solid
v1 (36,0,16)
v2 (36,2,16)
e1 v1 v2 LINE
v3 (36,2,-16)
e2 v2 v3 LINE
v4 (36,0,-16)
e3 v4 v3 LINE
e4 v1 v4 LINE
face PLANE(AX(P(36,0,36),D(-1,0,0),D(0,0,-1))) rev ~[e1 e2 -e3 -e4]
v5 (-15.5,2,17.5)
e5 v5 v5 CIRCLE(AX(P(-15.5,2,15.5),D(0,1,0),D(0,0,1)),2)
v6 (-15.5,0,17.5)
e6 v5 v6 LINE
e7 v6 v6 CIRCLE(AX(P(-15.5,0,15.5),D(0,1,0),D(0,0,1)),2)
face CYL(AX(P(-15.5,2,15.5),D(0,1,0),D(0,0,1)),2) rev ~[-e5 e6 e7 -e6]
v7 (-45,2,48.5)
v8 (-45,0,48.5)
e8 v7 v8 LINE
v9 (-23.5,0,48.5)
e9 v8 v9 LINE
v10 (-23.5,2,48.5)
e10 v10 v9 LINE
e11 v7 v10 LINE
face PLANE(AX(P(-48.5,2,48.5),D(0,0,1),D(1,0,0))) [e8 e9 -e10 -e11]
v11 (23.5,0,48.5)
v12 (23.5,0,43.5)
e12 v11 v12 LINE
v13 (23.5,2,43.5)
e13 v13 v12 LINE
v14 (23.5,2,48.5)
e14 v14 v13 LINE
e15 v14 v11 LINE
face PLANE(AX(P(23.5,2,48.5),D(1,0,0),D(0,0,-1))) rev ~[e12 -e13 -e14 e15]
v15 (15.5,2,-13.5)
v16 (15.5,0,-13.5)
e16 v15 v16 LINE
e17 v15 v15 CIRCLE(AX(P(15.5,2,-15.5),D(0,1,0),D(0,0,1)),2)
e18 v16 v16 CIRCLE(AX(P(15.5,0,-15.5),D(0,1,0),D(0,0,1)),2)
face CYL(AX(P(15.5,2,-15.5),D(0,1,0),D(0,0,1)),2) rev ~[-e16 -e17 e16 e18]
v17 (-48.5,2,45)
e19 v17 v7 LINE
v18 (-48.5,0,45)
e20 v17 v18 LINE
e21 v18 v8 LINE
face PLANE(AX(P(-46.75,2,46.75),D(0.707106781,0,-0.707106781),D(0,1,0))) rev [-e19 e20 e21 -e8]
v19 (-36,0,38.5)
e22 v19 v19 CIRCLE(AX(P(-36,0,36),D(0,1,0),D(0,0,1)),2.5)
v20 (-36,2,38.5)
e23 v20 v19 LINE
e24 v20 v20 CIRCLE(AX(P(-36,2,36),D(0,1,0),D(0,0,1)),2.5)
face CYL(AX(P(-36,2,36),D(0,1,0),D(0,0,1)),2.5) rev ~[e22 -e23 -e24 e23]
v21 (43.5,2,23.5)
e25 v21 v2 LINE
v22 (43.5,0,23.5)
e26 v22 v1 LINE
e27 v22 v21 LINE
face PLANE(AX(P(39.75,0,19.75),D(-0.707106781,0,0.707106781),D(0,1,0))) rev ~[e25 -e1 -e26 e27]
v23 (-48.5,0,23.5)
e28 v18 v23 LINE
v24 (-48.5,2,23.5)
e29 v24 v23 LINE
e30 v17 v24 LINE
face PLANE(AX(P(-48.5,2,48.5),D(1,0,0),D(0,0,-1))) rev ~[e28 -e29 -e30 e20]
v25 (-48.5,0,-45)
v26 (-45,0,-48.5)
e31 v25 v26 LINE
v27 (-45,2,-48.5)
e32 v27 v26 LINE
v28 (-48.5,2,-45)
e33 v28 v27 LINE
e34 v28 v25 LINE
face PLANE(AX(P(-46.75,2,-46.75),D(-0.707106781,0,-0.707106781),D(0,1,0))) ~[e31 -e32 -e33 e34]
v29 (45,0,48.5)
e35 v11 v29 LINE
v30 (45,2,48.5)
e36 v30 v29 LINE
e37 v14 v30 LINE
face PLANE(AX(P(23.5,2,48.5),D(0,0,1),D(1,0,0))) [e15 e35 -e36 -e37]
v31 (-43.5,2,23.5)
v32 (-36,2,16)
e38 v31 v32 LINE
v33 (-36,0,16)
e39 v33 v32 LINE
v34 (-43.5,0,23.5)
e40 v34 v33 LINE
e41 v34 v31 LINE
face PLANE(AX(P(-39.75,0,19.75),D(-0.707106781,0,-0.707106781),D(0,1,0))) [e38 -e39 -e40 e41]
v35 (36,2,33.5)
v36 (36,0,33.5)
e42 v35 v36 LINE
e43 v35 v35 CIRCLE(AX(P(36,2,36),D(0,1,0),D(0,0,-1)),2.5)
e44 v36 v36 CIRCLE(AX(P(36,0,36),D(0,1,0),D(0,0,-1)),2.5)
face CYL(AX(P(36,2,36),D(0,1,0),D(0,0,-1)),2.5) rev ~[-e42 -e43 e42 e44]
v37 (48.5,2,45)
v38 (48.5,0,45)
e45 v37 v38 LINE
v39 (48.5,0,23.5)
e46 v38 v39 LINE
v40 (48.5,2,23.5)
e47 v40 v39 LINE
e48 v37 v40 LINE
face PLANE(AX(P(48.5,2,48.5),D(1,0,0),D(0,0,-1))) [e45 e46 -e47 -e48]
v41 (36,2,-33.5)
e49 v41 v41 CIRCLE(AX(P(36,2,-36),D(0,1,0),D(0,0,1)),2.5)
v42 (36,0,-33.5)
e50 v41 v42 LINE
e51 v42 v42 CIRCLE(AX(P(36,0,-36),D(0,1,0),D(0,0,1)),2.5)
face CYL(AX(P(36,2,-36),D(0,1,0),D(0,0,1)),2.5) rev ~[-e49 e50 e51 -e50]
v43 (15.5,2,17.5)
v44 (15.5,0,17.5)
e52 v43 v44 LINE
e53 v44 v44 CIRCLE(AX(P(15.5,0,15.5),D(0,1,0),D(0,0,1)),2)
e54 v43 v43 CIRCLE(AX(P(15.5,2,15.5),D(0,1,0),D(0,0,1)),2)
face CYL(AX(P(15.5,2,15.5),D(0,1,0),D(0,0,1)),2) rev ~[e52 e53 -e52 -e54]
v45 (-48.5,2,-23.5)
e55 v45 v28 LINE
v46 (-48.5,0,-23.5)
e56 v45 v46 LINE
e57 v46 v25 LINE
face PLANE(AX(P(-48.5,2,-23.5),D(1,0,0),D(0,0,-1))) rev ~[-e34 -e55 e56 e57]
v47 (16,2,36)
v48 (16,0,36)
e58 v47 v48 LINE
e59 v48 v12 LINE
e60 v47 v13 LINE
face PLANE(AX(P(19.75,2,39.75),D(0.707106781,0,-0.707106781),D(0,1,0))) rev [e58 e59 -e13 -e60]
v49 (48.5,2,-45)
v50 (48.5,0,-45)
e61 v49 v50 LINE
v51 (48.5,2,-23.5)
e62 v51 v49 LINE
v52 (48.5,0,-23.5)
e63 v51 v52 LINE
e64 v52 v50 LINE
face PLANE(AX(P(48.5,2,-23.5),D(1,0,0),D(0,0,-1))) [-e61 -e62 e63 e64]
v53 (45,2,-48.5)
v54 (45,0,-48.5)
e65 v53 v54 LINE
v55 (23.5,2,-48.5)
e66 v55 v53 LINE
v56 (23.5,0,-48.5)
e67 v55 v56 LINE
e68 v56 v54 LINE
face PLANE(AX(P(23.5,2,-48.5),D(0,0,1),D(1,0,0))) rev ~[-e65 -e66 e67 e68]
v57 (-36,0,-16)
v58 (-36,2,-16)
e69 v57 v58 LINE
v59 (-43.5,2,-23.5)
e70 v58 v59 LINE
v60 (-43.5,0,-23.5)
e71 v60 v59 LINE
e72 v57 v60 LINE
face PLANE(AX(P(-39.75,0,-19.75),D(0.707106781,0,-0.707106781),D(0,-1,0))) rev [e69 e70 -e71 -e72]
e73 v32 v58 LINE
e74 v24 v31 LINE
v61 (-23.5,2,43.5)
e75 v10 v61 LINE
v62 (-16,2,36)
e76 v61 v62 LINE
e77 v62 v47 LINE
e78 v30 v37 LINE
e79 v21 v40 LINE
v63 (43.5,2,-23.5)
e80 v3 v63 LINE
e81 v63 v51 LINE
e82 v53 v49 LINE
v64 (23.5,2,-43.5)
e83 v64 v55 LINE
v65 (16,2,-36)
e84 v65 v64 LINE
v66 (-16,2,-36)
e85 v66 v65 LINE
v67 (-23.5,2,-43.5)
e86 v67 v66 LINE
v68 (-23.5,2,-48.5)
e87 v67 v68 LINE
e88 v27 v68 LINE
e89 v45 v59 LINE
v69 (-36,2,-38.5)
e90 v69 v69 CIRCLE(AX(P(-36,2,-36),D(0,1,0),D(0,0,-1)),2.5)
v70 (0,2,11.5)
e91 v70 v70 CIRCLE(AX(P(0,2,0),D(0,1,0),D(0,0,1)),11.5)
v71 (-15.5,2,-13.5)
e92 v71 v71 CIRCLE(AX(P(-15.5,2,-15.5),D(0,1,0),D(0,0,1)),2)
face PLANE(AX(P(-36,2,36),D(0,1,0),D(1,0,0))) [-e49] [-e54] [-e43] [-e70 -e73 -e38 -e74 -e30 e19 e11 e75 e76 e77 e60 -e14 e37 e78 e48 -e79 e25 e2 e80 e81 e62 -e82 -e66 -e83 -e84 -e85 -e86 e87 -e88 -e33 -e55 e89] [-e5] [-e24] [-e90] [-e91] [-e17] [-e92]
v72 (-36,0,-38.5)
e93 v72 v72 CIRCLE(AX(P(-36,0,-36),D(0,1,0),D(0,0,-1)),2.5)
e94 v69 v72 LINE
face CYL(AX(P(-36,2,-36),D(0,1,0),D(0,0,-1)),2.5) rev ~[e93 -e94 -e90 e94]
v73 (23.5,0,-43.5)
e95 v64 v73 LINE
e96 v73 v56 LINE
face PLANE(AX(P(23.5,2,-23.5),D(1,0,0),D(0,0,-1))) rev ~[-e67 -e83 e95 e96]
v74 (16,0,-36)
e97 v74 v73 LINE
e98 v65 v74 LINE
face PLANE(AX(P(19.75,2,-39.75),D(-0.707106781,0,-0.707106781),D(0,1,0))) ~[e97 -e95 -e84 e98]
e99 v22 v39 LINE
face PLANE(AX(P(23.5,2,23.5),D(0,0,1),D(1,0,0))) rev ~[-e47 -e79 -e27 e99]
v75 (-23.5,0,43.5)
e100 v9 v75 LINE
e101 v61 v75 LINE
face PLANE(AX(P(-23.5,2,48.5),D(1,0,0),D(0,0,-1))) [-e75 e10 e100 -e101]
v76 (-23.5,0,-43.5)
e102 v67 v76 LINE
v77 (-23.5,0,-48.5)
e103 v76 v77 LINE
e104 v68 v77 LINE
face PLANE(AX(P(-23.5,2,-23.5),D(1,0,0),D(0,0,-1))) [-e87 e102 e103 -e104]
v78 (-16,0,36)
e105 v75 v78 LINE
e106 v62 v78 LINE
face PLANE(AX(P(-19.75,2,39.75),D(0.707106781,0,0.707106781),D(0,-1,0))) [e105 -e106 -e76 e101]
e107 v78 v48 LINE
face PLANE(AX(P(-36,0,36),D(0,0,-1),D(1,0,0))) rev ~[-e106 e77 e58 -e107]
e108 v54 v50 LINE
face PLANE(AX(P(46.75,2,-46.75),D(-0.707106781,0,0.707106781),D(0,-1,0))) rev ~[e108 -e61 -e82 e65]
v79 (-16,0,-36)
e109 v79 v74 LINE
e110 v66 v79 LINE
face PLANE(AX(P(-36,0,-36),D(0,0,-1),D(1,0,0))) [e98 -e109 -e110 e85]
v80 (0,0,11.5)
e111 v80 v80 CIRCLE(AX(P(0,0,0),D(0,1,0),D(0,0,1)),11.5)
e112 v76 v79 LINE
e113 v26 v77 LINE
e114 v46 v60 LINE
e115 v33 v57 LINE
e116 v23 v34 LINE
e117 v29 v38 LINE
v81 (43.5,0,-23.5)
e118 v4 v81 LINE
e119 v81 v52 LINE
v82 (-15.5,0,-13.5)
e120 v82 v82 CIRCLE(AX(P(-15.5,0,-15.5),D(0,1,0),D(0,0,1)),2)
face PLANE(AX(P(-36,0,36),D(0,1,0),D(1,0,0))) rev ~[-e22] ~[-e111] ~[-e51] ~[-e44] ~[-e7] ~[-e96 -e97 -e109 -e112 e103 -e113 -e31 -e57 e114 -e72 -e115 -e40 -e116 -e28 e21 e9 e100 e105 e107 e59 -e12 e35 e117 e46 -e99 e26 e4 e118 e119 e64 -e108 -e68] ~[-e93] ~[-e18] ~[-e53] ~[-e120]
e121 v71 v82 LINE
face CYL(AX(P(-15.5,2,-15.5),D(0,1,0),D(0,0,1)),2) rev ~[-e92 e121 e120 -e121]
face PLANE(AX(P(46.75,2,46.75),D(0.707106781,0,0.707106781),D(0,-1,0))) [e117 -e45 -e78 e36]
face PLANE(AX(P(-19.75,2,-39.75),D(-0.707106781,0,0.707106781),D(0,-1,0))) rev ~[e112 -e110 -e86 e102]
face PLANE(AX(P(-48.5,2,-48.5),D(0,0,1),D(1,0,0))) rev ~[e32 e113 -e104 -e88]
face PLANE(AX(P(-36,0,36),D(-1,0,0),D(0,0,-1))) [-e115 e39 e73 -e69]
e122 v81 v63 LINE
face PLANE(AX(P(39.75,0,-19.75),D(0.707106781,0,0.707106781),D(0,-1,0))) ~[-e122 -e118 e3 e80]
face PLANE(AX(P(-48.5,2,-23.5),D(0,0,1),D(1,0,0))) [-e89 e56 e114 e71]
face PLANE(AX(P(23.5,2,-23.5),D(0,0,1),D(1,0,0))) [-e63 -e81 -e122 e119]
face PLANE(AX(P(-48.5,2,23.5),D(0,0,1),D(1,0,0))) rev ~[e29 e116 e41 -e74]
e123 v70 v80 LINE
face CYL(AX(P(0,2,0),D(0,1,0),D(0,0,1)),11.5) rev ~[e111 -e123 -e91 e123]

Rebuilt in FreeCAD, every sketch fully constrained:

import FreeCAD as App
import Part
import Sketcher
Q = App.Units.Quantity


def edges_at(feature, points):
    """Names of the edges that pass closest to the given points."""
    edges = feature.Shape.Edges
    near = lambda p: min(range(len(edges)), key=lambda i: edges[i].distToShape(Part.Vertex(*p))[0])
    return sorted({f"Edge{near(p) + 1}" for p in points})

doc = App.newDocument("Part")
body = doc.addObject("PartDesign::Body", "Body")

# Sketch on XZ plane
sketch1 = body.newObject("Sketcher::SketchObject", "Sketch")
sketch1.AttachmentSupport = (doc.getObject("XZ_Plane"), [""])
sketch1.MapMode = "FlatFace"
sketch1.addGeometry(Part.LineSegment(App.Vector(-36, -36, 0), App.Vector(-36, 36, 0)), False)
sketch1.addGeometry(Part.LineSegment(App.Vector(-36, 36, 0), App.Vector(36, 36, 0)), False)
sketch1.addGeometry(Part.LineSegment(App.Vector(36, 36, 0), App.Vector(36, -36, 0)), False)
sketch1.addGeometry(Part.LineSegment(App.Vector(36, -36, 0), App.Vector(-36, -36, 0)), False)
sketch1.addConstraint(Sketcher.Constraint("Coincident", 0, 2, 1, 1))
sketch1.addConstraint(Sketcher.Constraint("Coincident", 1, 2, 2, 1))
sketch1.addConstraint(Sketcher.Constraint("Coincident", 2, 2, 3, 1))
sketch1.addConstraint(Sketcher.Constraint("Coincident", 3, 2, 0, 1))
sketch1.addConstraint(Sketcher.Constraint("Vertical", 0))
sketch1.addConstraint(Sketcher.Constraint("Horizontal", 1))
sketch1.addConstraint(Sketcher.Constraint("Vertical", 2))
sketch1.addConstraint(Sketcher.Constraint("Horizontal", 3))
sketch1.addConstraint(Sketcher.Constraint("Symmetric", 0, 2, 2, 2, -1, 1))
sketch1.addConstraint(Sketcher.Constraint("Equal", 3, 0))
sketch1.addConstraint(Sketcher.Constraint("DistanceX", 1, 1, 1, 2, Q("72 mm")))
pad1 = body.newObject("PartDesign::Pad", "Pad")
pad1.Profile = sketch1
pad1.Length = 2
pad1.Reversed = True

# Sketch on XZ plane
sketch2 = body.newObject("Sketcher::SketchObject", "Sketch001")
sketch2.AttachmentSupport = (doc.getObject("XZ_Plane"), [""])
sketch2.MapMode = "FlatFace"
sketch2.AttachmentOffset = App.Placement(App.Vector(0, 0, -2), App.Rotation())
sketch2.addGeometry(Part.LineSegment(App.Vector(-48.5, 23.5, 0), App.Vector(-48.5, 48.5, 0)), False)
sketch2.addGeometry(Part.LineSegment(App.Vector(-48.5, 48.5, 0), App.Vector(-23.5, 48.5, 0)), False)
sketch2.addGeometry(Part.LineSegment(App.Vector(-23.5, 48.5, 0), App.Vector(-23.5, 23.5, 0)), False)
sketch2.addGeometry(Part.LineSegment(App.Vector(-23.5, 23.5, 0), App.Vector(-48.5, 23.5, 0)), False)
sketch2.addGeometry(Part.LineSegment(App.Vector(23.5, 23.5, 0), App.Vector(23.5, 48.5, 0)), False)
sketch2.addGeometry(Part.LineSegment(App.Vector(23.5, 48.5, 0), App.Vector(48.5, 48.5, 0)), False)
sketch2.addGeometry(Part.LineSegment(App.Vector(48.5, 48.5, 0), App.Vector(48.5, 23.5, 0)), False)
sketch2.addGeometry(Part.LineSegment(App.Vector(48.5, 23.5, 0), App.Vector(23.5, 23.5, 0)), False)
sketch2.addGeometry(Part.LineSegment(App.Vector(23.5, -48.5, 0), App.Vector(23.5, -23.5, 0)), False)
sketch2.addGeometry(Part.LineSegment(App.Vector(23.5, -23.5, 0), App.Vector(48.5, -23.5, 0)), False)
sketch2.addGeometry(Part.LineSegment(App.Vector(48.5, -23.5, 0), App.Vector(48.5, -48.5, 0)), False)
sketch2.addGeometry(Part.LineSegment(App.Vector(48.5, -48.5, 0), App.Vector(23.5, -48.5, 0)), False)
sketch2.addGeometry(Part.LineSegment(App.Vector(-48.5, -48.5, 0), App.Vector(-48.5, -23.5, 0)), False)
sketch2.addGeometry(Part.LineSegment(App.Vector(-48.5, -23.5, 0), App.Vector(-23.5, -23.5, 0)), False)
sketch2.addGeometry(Part.LineSegment(App.Vector(-23.5, -23.5, 0), App.Vector(-23.5, -48.5, 0)), False)
sketch2.addGeometry(Part.LineSegment(App.Vector(-23.5, -48.5, 0), App.Vector(-48.5, -48.5, 0)), False)
sketch2.addConstraint(Sketcher.Constraint("Coincident", 0, 2, 1, 1))
sketch2.addConstraint(Sketcher.Constraint("Coincident", 1, 2, 2, 1))
sketch2.addConstraint(Sketcher.Constraint("Coincident", 2, 2, 3, 1))
sketch2.addConstraint(Sketcher.Constraint("Coincident", 3, 2, 0, 1))
sketch2.addConstraint(Sketcher.Constraint("Coincident", 4, 2, 5, 1))
sketch2.addConstraint(Sketcher.Constraint("Coincident", 5, 2, 6, 1))
sketch2.addConstraint(Sketcher.Constraint("Coincident", 6, 2, 7, 1))
sketch2.addConstraint(Sketcher.Constraint("Coincident", 7, 2, 4, 1))
sketch2.addConstraint(Sketcher.Constraint("Coincident", 8, 2, 9, 1))
sketch2.addConstraint(Sketcher.Constraint("Coincident", 9, 2, 10, 1))
sketch2.addConstraint(Sketcher.Constraint("Coincident", 10, 2, 11, 1))
sketch2.addConstraint(Sketcher.Constraint("Coincident", 11, 2, 8, 1))
sketch2.addConstraint(Sketcher.Constraint("Coincident", 12, 2, 13, 1))
sketch2.addConstraint(Sketcher.Constraint("Coincident", 13, 2, 14, 1))
sketch2.addConstraint(Sketcher.Constraint("Coincident", 14, 2, 15, 1))
sketch2.addConstraint(Sketcher.Constraint("Coincident", 15, 2, 12, 1))
sketch2.addConstraint(Sketcher.Constraint("Vertical", 0))
sketch2.addConstraint(Sketcher.Constraint("Horizontal", 1))
sketch2.addConstraint(Sketcher.Constraint("Vertical", 2))
sketch2.addConstraint(Sketcher.Constraint("Horizontal", 3))
sketch2.addConstraint(Sketcher.Constraint("Vertical", 4))
sketch2.addConstraint(Sketcher.Constraint("Horizontal", 5))
sketch2.addConstraint(Sketcher.Constraint("Vertical", 6))
sketch2.addConstraint(Sketcher.Constraint("Horizontal", 7))
sketch2.addConstraint(Sketcher.Constraint("Vertical", 8))
sketch2.addConstraint(Sketcher.Constraint("Horizontal", 9))
sketch2.addConstraint(Sketcher.Constraint("Vertical", 10))
sketch2.addConstraint(Sketcher.Constraint("Horizontal", 11))
sketch2.addConstraint(Sketcher.Constraint("Vertical", 12))
sketch2.addConstraint(Sketcher.Constraint("Horizontal", 13))
sketch2.addConstraint(Sketcher.Constraint("Vertical", 14))
sketch2.addConstraint(Sketcher.Constraint("Horizontal", 15))
sketch2.addConstraint(Sketcher.Constraint("Symmetric", 2, 2, 8, 2, -1, 1))
sketch2.addConstraint(Sketcher.Constraint("Symmetric", 0, 2, 10, 2, -1, 1))
sketch2.addConstraint(Sketcher.Constraint("Symmetric", 6, 2, 12, 2, -1, 1))
sketch2.addConstraint(Sketcher.Constraint("Symmetric", 4, 2, 14, 2, -1, 1))
sketch2.addConstraint(Sketcher.Constraint("Symmetric", 1, 2, 4, 2, -2))
sketch2.addConstraint(Sketcher.Constraint("Symmetric", 3, 2, 6, 2, -2))
sketch2.addConstraint(Sketcher.Constraint("Equal", 15, 0))
sketch2.addConstraint(Sketcher.Constraint("DistanceX", 1, 1, 1, 2, Q("25 mm")))
sketch2.addConstraint(Sketcher.Constraint("DistanceX", 1, 2, 4, 2, Q("47 mm")))
sketch2.addConstraint(Sketcher.Constraint("DistanceY", 8, 2, 7, 2, Q("47 mm")))
pad2 = body.newObject("PartDesign::Pad", "Pad001")
pad2.Profile = sketch2
pad2.Length = 2

# Sketch on XZ plane
sketch3 = body.newObject("Sketcher::SketchObject", "Sketch002")
sketch3.AttachmentSupport = (doc.getObject("XZ_Plane"), [""])
sketch3.MapMode = "FlatFace"
sketch3.AttachmentOffset = App.Placement(App.Vector(0, 0, -2), App.Rotation())
sketch3.addGeometry(Part.Circle(App.Vector(-15.5, -15.5, 0), App.Vector(0, 0, 1), 2), False)
sketch3.addGeometry(Part.Circle(App.Vector(15.5, -15.5, 0), App.Vector(0, 0, 1), 2), False)
sketch3.addGeometry(Part.Circle(App.Vector(15.5, 15.5, 0), App.Vector(0, 0, 1), 2), False)
sketch3.addGeometry(Part.Circle(App.Vector(-15.5, 15.5, 0), App.Vector(0, 0, 1), 2), False)
sketch3.addGeometry(Part.Circle(App.Vector(0, 0, 0), App.Vector(0, 0, 1), 11.5), False)
sketch3.addGeometry(Part.Circle(App.Vector(-36, 36, 0), App.Vector(0, 0, 1), 2.5), False)
sketch3.addGeometry(Part.Circle(App.Vector(36, 36, 0), App.Vector(0, 0, 1), 2.5), False)
sketch3.addGeometry(Part.Circle(App.Vector(36, -36, 0), App.Vector(0, 0, 1), 2.5), False)
sketch3.addGeometry(Part.Circle(App.Vector(-36, -36, 0), App.Vector(0, 0, 1), 2.5), False)
sketch3.addConstraint(Sketcher.Constraint("Coincident", 4, 3, -1, 1))
sketch3.addConstraint(Sketcher.Constraint("Equal", 0, 1))
sketch3.addConstraint(Sketcher.Constraint("Equal", 1, 2))
sketch3.addConstraint(Sketcher.Constraint("Equal", 2, 3))
sketch3.addConstraint(Sketcher.Constraint("Equal", 5, 6))
sketch3.addConstraint(Sketcher.Constraint("Equal", 6, 7))
sketch3.addConstraint(Sketcher.Constraint("Equal", 7, 8))
sketch3.addConstraint(Sketcher.Constraint("Symmetric", 0, 3, 2, 3, -1, 1))
sketch3.addConstraint(Sketcher.Constraint("Symmetric", 1, 3, 3, 3, -1, 1))
sketch3.addConstraint(Sketcher.Constraint("Symmetric", 5, 3, 7, 3, -1, 1))
sketch3.addConstraint(Sketcher.Constraint("Symmetric", 6, 3, 8, 3, -1, 1))
sketch3.addConstraint(Sketcher.Constraint("Symmetric", 0, 3, 1, 3, -2))
sketch3.addConstraint(Sketcher.Constraint("Symmetric", 5, 3, 6, 3, -2))
sketch3.addConstraint(Sketcher.Constraint("Diameter", 0, Q("4 mm")))
sketch3.addConstraint(Sketcher.Constraint("Diameter", 4, Q("23 mm")))
sketch3.addConstraint(Sketcher.Constraint("Diameter", 5, Q("5 mm")))
sketch3.addConstraint(Sketcher.Constraint("DistanceX", 5, 3, -1, 1, Q("36 mm")))
sketch3.addConstraint(Sketcher.Constraint("DistanceY", -1, 1, 5, 3, Q("36 mm")))
sketch3.addConstraint(Sketcher.Constraint("DistanceX", 0, 3, 1, 3, Q("31 mm")))
sketch3.addConstraint(Sketcher.Constraint("DistanceY", 1, 3, 2, 3, Q("31 mm")))
pocket1 = body.newObject("PartDesign::Pocket", "Pocket")
pocket1.Profile = sketch3
pocket1.Type = "ThroughAll"
pocket1.Reversed = True
doc.recompute()

chamfer = body.newObject("PartDesign::Chamfer", "Chamfer")
chamfer.Base = (pocket1, edges_at(pocket1, [
    (-23.5, 1, 36),
    (-36, 1, 23.5),
    (36, 1, 23.5),
    (23.5, 1, 36),
    (36, 1, -23.5),
    (23.5, 1, -36),
    (-36, 1, -23.5),
    (-23.5, 1, -36),
]))
chamfer.Size = 7.5
doc.recompute()

chamfer2 = body.newObject("PartDesign::Chamfer", "Chamfer001")
chamfer2.Base = (chamfer, edges_at(chamfer, [
    (-48.5, 1, 48.5),
    (48.5, 1, 48.5),
    (48.5, 1, -48.5),
    (-48.5, 1, -48.5),
]))
chamfer2.Size = 3.5

doc.recompute()
